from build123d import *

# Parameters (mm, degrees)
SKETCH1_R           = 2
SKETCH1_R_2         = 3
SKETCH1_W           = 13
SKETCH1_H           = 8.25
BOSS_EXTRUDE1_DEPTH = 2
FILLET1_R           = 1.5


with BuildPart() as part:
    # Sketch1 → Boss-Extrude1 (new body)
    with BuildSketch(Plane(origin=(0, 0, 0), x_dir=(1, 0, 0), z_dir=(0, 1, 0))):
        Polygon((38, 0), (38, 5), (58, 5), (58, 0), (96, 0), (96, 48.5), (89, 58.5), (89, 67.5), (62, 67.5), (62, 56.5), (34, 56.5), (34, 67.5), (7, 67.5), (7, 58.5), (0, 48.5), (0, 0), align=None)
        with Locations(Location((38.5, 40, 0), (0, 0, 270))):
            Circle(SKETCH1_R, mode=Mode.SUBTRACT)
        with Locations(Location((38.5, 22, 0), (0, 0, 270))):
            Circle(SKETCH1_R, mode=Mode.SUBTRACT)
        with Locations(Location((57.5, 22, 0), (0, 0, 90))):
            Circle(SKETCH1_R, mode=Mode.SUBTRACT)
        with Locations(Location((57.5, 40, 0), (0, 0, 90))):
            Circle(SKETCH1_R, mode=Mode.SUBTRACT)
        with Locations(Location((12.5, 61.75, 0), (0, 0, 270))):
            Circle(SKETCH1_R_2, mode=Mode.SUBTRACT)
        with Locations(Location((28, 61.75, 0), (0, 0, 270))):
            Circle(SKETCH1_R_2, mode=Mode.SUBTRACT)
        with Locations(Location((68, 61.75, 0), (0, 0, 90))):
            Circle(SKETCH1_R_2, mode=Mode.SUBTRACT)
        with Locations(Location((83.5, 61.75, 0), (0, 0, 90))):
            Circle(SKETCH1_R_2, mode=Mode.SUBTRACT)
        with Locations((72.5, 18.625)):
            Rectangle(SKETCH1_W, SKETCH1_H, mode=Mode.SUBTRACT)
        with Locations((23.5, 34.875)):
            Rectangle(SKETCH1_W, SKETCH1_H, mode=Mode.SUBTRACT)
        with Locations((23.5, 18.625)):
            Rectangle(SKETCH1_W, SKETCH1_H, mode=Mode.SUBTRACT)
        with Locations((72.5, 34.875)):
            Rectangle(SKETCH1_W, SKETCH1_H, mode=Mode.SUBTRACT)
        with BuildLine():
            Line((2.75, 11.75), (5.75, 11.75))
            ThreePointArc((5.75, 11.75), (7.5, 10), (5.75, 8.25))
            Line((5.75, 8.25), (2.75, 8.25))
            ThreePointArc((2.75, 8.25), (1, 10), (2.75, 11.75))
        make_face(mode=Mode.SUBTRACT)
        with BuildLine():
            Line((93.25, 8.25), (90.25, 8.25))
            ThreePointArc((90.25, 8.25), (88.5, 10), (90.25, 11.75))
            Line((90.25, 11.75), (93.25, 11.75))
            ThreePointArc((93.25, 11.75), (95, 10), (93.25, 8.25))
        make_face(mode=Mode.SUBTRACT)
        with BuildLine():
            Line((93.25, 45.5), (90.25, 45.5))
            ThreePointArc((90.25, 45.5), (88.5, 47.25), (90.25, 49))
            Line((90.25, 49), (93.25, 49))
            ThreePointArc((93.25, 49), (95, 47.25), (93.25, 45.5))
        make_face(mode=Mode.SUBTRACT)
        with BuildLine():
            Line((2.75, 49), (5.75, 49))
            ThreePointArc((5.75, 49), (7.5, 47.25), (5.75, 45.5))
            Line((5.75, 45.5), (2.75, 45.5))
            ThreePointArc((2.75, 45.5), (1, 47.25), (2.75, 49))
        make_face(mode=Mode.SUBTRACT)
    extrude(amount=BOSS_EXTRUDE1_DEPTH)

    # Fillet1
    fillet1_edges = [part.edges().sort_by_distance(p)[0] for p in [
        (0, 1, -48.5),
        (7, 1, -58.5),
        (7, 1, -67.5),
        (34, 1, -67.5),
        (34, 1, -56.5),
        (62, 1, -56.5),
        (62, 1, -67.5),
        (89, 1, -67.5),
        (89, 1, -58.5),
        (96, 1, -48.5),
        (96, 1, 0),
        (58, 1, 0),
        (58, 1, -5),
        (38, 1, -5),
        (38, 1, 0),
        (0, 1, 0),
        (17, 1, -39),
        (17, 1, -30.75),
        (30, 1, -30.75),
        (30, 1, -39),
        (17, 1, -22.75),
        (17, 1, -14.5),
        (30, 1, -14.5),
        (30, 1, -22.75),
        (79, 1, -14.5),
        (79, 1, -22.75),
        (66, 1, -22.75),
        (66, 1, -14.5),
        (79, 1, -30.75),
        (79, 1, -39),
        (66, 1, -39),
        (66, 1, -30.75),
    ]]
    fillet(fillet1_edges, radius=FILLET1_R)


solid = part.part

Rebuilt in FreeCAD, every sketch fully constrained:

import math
import FreeCAD as App
import Part
import Sketcher

V = App.Vector


def edges_at(feature, points):
    """Names of the edges that pass closest to the given points."""
    edges = feature.Shape.Edges
    near = lambda p: min(range(len(edges)), key=lambda i: edges[i].distToShape(Part.Vertex(*p))[0])
    return sorted({f"Edge{near(p) + 1}" for p in points})

doc = App.newDocument("Part")
body = doc.addObject("PartDesign::Body", "Body")

sketch1 = body.newObject("Sketcher::SketchObject", "Sketch")
sketch1.AttachmentSupport = (doc.getObject("XZ_Plane"), [""])
sketch1.MapMode = "FlatFace"
sketch1.addGeometry(Part.LineSegment(V(38, 0, 0), V(38, -5, 0)), False)
sketch1.addGeometry(Part.LineSegment(V(38, -5, 0), V(58, -5, 0)), False)
sketch1.addGeometry(Part.LineSegment(V(58, -5, 0), V(58, 0, 0)), False)
sketch1.addGeometry(Part.LineSegment(V(58, 0, 0), V(96, 0, 0)), False)
sketch1.addGeometry(Part.LineSegment(V(96, 0, 0), V(96, -48.5, 0)), False)
sketch1.addGeometry(Part.LineSegment(V(96, -48.5, 0), V(89, -58.5, 0)), False)
sketch1.addGeometry(Part.LineSegment(V(89, -58.5, 0), V(89, -67.5, 0)), False)
sketch1.addGeometry(Part.LineSegment(V(89, -67.5, 0), V(62, -67.5, 0)), False)
sketch1.addGeometry(Part.LineSegment(V(62, -67.5, 0), V(62, -56.5, 0)), False)
sketch1.addGeometry(Part.LineSegment(V(62, -56.5, 0), V(34, -56.5, 0)), False)
sketch1.addGeometry(Part.LineSegment(V(34, -56.5, 0), V(34, -67.5, 0)), False)
sketch1.addGeometry(Part.LineSegment(V(34, -67.5, 0), V(7, -67.5, 0)), False)
sketch1.addGeometry(Part.LineSegment(V(7, -67.5, 0), V(7, -58.5, 0)), False)
sketch1.addGeometry(Part.LineSegment(V(7, -58.5, 0), V(0, -48.5, 0)), False)
sketch1.addGeometry(Part.LineSegment(V(0, -48.5, 0), V(0, 0, 0)), False)
sketch1.addGeometry(Part.LineSegment(V(0, 0, 0), V(38, 0, 0)), False)
sketch1.addGeometry(Part.ArcOfCircle(Part.Circle(V(2.8, -10, 0), V(0, 0, 1), 1.8), math.radians(90), math.radians(270)), False)
sketch1.addGeometry(Part.LineSegment(V(2.8, -11.8, 0), V(5.8, -11.8, 0)), False)
sketch1.addGeometry(Part.ArcOfCircle(Part.Circle(V(5.8, -10, 0), V(0, 0, 1), 1.8), math.radians(-90), math.radians(90)), False)
sketch1.addGeometry(Part.LineSegment(V(5.8, -8.2, 0), V(2.8, -8.2, 0)), False)
sketch1.addGeometry(Part.LineSegment(V(30, -14.5, 0), V(17, -14.5, 0)), False)
sketch1.addGeometry(Part.LineSegment(V(17, -14.5, 0), V(17, -22.8, 0)), False)
sketch1.addGeometry(Part.LineSegment(V(17, -22.8, 0), V(30, -22.8, 0)), False)
sketch1.addGeometry(Part.LineSegment(V(30, -22.8, 0), V(30, -14.5, 0)), False)
sketch1.addGeometry(Part.Circle(V(38.5, -22, 0), V(0, 0, 1), 2), False)
sketch1.addGeometry(Part.LineSegment(V(30, -30.8, 0), V(17, -30.8, 0)), False)
sketch1.addGeometry(Part.LineSegment(V(17, -30.8, 0), V(17, -39, 0)), False)
sketch1.addGeometry(Part.LineSegment(V(17, -39, 0), V(30, -39, 0)), False)
sketch1.addGeometry(Part.LineSegment(V(30, -39, 0), V(30, -30.8, 0)), False)
sketch1.addGeometry(Part.Circle(V(57.5, -22, 0), V(0, 0, 1), 2), False)
sketch1.addGeometry(Part.ArcOfCircle(Part.Circle(V(93.2, -10, 0), V(0, 0, 1), 1.8), math.radians(-90), math.radians(90)), False)
sketch1.addGeometry(Part.LineSegment(V(93.2, -8.2, 0), V(90.2, -8.2, 0)), False)
sketch1.addGeometry(Part.ArcOfCircle(Part.Circle(V(90.2, -10, 0), V(0, 0, 1), 1.8), math.radians(90), math.radians(270)), False)
sketch1.addGeometry(Part.LineSegment(V(90.2, -11.8, 0), V(93.2, -11.8, 0)), False)
sketch1.addGeometry(Part.LineSegment(V(79, -14.5, 0), V(66, -14.5, 0)), False)
sketch1.addGeometry(Part.LineSegment(V(66, -14.5, 0), V(66, -22.8, 0)), False)
sketch1.addGeometry(Part.LineSegment(V(66, -22.8, 0), V(79, -22.8, 0)), False)
sketch1.addGeometry(Part.LineSegment(V(79, -22.8, 0), V(79, -14.5, 0)), False)
sketch1.addGeometry(Part.LineSegment(V(79, -30.8, 0), V(66, -30.8, 0)), False)
sketch1.addGeometry(Part.LineSegment(V(66, -30.8, 0), V(66, -39, 0)), False)
sketch1.addGeometry(Part.LineSegment(V(66, -39, 0), V(79, -39, 0)), False)
sketch1.addGeometry(Part.LineSegment(V(79, -39, 0), V(79, -30.8, 0)), False)
sketch1.addGeometry(Part.ArcOfCircle(Part.Circle(V(2.8, -47.2, 0), V(0, 0, 1), 1.8), math.radians(90), math.radians(270)), False)
sketch1.addGeometry(Part.LineSegment(V(2.8, -49, 0), V(5.8, -49, 0)), False)
sketch1.addGeometry(Part.ArcOfCircle(Part.Circle(V(5.8, -47.2, 0), V(0, 0, 1), 1.8), math.radians(-90), math.radians(90)), False)
sketch1.addGeometry(Part.LineSegment(V(5.8, -45.5, 0), V(2.8, -45.5, 0)), False)
sketch1.addGeometry(Part.Circle(V(38.5, -40, 0), V(0, 0, 1), 2), False)
sketch1.addGeometry(Part.Circle(V(12.5, -61.8, 0), V(0, 0, 1), 3), False)
sketch1.addGeometry(Part.Circle(V(28, -61.8, 0), V(0, 0, 1), 3), False)
sketch1.addGeometry(Part.Circle(V(57.5, -40, 0), V(0, 0, 1), 2), False)
sketch1.addGeometry(Part.ArcOfCircle(Part.Circle(V(93.2, -47.2, 0), V(0, 0, 1), 1.8), math.radians(-90), math.radians(90)), False)
sketch1.addGeometry(Part.LineSegment(V(93.2, -45.5, 0), V(90.2, -45.5, 0)), False)
sketch1.addGeometry(Part.ArcOfCircle(Part.Circle(V(90.2, -47.2, 0), V(0, 0, 1), 1.8), math.radians(90), math.radians(270)), False)
sketch1.addGeometry(Part.LineSegment(V(90.2, -49, 0), V(93.2, -49, 0)), False)
sketch1.addGeometry(Part.Circle(V(68, -61.8, 0), V(0, 0, 1), 3), False)
sketch1.addGeometry(Part.Circle(V(83.5, -61.8, 0), V(0, 0, 1), 3), False)
sketch1.addConstraint(Sketcher.Constraint("Coincident", 0, 2, 1, 1))
sketch1.addConstraint(Sketcher.Constraint("Coincident", 1, 2, 2, 1))
sketch1.addConstraint(Sketcher.Constraint("Coincident", 2, 2, 3, 1))
sketch1.addConstraint(Sketcher.Constraint("Coincident", 3, 2, 4, 1))
sketch1.addConstraint(Sketcher.Constraint("Coincident", 4, 2, 5, 1))
sketch1.addConstraint(Sketcher.Constraint("Coincident", 5, 2, 6, 1))
sketch1.addConstraint(Sketcher.Constraint("Coincident", 6, 2, 7, 1))
sketch1.addConstraint(Sketcher.Constraint("Coincident", 7, 2, 8, 1))
sketch1.addConstraint(Sketcher.Constraint("Coincident", 8, 2, 9, 1))
sketch1.addConstraint(Sketcher.Constraint("Coincident", 9, 2, 10, 1))
sketch1.addConstraint(Sketcher.Constraint("Coincident", 10, 2, 11, 1))
sketch1.addConstraint(Sketcher.Constraint("Coincident", 11, 2, 12, 1))
sketch1.addConstraint(Sketcher.Constraint("Coincident", 12, 2, 13, 1))
sketch1.addConstraint(Sketcher.Constraint("Coincident", 13, 2, 14, 1))
sketch1.addConstraint(Sketcher.Constraint("Coincident", 14, 2, 15, 1))
sketch1.addConstraint(Sketcher.Constraint("Coincident", 15, 2, 0, 1))
sketch1.addConstraint(Sketcher.Constraint("Tangent", 16, 2, 17, 1))
sketch1.addConstraint(Sketcher.Constraint("Tangent", 17, 2, 18, 1))
sketch1.addConstraint(Sketcher.Constraint("Tangent", 18, 2, 19, 1))
sketch1.addConstraint(Sketcher.Constraint("Tangent", 19, 2, 16, 1))
sketch1.addConstraint(Sketcher.Constraint("Coincident", 20, 2, 21, 1))
sketch1.addConstraint(Sketcher.Constraint("Coincident", 21, 2, 22, 1))
sketch1.addConstraint(Sketcher.Constraint("Coincident", 22, 2, 23, 1))
sketch1.addConstraint(Sketcher.Constraint("Coincident", 23, 2, 20, 1))
sketch1.addConstraint(Sketcher.Constraint("Coincident", 25, 2, 26, 1))
sketch1.addConstraint(Sketcher.Constraint("Coincident", 26, 2, 27, 1))
sketch1.addConstraint(Sketcher.Constraint("Coincident", 27, 2, 28, 1))
sketch1.addConstraint(Sketcher.Constraint("Coincident", 28, 2, 25, 1))
sketch1.addConstraint(Sketcher.Constraint("Tangent", 30, 2, 31, 1))
sketch1.addConstraint(Sketcher.Constraint("Tangent", 31, 2, 32, 1))
sketch1.addConstraint(Sketcher.Constraint("Tangent", 32, 2, 33, 1))
sketch1.addConstraint(Sketcher.Constraint("Tangent", 33, 2, 30, 1))
sketch1.addConstraint(Sketcher.Constraint("Coincident", 34, 2, 35, 1))
sketch1.addConstraint(Sketcher.Constraint("Coincident", 35, 2, 36, 1))
sketch1.addConstraint(Sketcher.Constraint("Coincident", 36, 2, 37, 1))
sketch1.addConstraint(Sketcher.Constraint("Coincident", 37, 2, 34, 1))
sketch1.addConstraint(Sketcher.Constraint("Coincident", 38, 2, 39, 1))
sketch1.addConstraint(Sketcher.Constraint("Coincident", 39, 2, 40, 1))
sketch1.addConstraint(Sketcher.Constraint("Coincident", 40, 2, 41, 1))
sketch1.addConstraint(Sketcher.Constraint("Coincident", 41, 2, 38, 1))
sketch1.addConstraint(Sketcher.Constraint("Tangent", 42, 2, 43, 1))
sketch1.addConstraint(Sketcher.Constraint("Tangent", 43, 2, 44, 1))
sketch1.addConstraint(Sketcher.Constraint("Tangent", 44, 2, 45, 1))
sketch1.addConstraint(Sketcher.Constraint("Tangent", 45, 2, 42, 1))
sketch1.addConstraint(Sketcher.Constraint("Tangent", 50, 2, 51, 1))
sketch1.addConstraint(Sketcher.Constraint("Tangent", 51, 2, 52, 1))
sketch1.addConstraint(Sketcher.Constraint("Tangent", 52, 2, 53, 1))
sketch1.addConstraint(Sketcher.Constraint("Tangent", 53, 2, 50, 1))
sketch1.addConstraint(Sketcher.Constraint("Vertical", 0))
sketch1.addConstraint(Sketcher.Constraint("Horizontal", 1))
sketch1.addConstraint(Sketcher.Constraint("Vertical", 2))
sketch1.addConstraint(Sketcher.Constraint("Horizontal", 3))
sketch1.addConstraint(Sketcher.Constraint("Vertical", 4))
sketch1.addConstraint(Sketcher.Constraint("Vertical", 6))
sketch1.addConstraint(Sketcher.Constraint("Horizontal", 7))
sketch1.addConstraint(Sketcher.Constraint("Vertical", 8))
sketch1.addConstraint(Sketcher.Constraint("Horizontal", 9))
sketch1.addConstraint(Sketcher.Constraint("Vertical", 10))
sketch1.addConstraint(Sketcher.Constraint("Horizontal", 11))
sketch1.addConstraint(Sketcher.Constraint("Vertical", 12))
sketch1.addConstraint(Sketcher.Constraint("Vertical", 14))
sketch1.addConstraint(Sketcher.Constraint("Horizontal", 15))
sketch1.addConstraint(Sketcher.Constraint("Horizontal", 17))
sketch1.addConstraint(Sketcher.Constraint("Horizontal", 19))
sketch1.addConstraint(Sketcher.Constraint("Horizontal", 20))
sketch1.addConstraint(Sketcher.Constraint("Vertical", 21))
sketch1.addConstraint(Sketcher.Constraint("Horizontal", 22))
sketch1.addConstraint(Sketcher.Constraint("Vertical", 23))
sketch1.addConstraint(Sketcher.Constraint("Horizontal", 25))
sketch1.addConstraint(Sketcher.Constraint("Vertical", 26))
sketch1.addConstraint(Sketcher.Constraint("Horizontal", 27))
sketch1.addConstraint(Sketcher.Constraint("Vertical", 28))
sketch1.addConstraint(Sketcher.Constraint("Horizontal", 31))
sketch1.addConstraint(Sketcher.Constraint("Horizontal", 33))
sketch1.addConstraint(Sketcher.Constraint("Horizontal", 34))
sketch1.addConstraint(Sketcher.Constraint("Vertical", 35))
sketch1.addConstraint(Sketcher.Constraint("Horizontal", 36))
sketch1.addConstraint(Sketcher.Constraint("Vertical", 37))
sketch1.addConstraint(Sketcher.Constraint("Horizontal", 38))
sketch1.addConstraint(Sketcher.Constraint("Vertical", 39))
sketch1.addConstraint(Sketcher.Constraint("Horizontal", 40))
sketch1.addConstraint(Sketcher.Constraint("Vertical", 41))
sketch1.addConstraint(Sketcher.Constraint("Horizontal", 43))
sketch1.addConstraint(Sketcher.Constraint("Horizontal", 45))
sketch1.addConstraint(Sketcher.Constraint("Horizontal", 51))
sketch1.addConstraint(Sketcher.Constraint("Horizontal", 53))
sketch1.addConstraint(Sketcher.Constraint("Coincident", 14, 2, -1, 1))
sketch1.addConstraint(Sketcher.Constraint("Equal", 24, 29))
sketch1.addConstraint(Sketcher.Constraint("Equal", 18, 30))
sketch1.addConstraint(Sketcher.Constraint("Equal", 32, 42))
sketch1.addConstraint(Sketcher.Constraint("Equal", 29, 46))
sketch1.addConstraint(Sketcher.Constraint("Equal", 47, 48))
sketch1.addConstraint(Sketcher.Constraint("Equal", 46, 49))
sketch1.addConstraint(Sketcher.Constraint("Equal", 44, 50))
sketch1.addConstraint(Sketcher.Constraint("Equal", 48, 54))
sketch1.addConstraint(Sketcher.Constraint("Equal", 54, 55))
sketch1.addConstraint(Sketcher.Constraint("PointOnObject", 2, 2, -1))
sketch1.addConstraint(Sketcher.Constraint("Horizontal", 24, 3, 29, 3))
sketch1.addConstraint(Sketcher.Constraint("Horizontal", 18, 3, 30, 3))
sketch1.addConstraint(Sketcher.Constraint("Horizontal", 47, 3, 48, 3))
sketch1.addConstraint(Sketcher.Constraint("Horizontal", 46, 3, 49, 3))
sketch1.addConstraint(Sketcher.Constraint("Horizontal", 44, 3, 50, 3))
sketch1.addConstraint(Sketcher.Constraint("Horizontal", 48, 3, 54, 3))
sketch1.addConstraint(Sketcher.Constraint("Horizontal", 54, 3, 55, 3))
sketch1.addConstraint(Sketcher.Constraint("Horizontal", 7, 2, 10, 2))
sketch1.addConstraint(Sketcher.Constraint("Horizontal", 5, 2, 12, 2))
sketch1.addConstraint(Sketcher.Constraint("Horizontal", 4, 2, 13, 2))
sketch1.addConstraint(Sketcher.Constraint("Horizontal", 23, 2, 34, 2))
sketch1.addConstraint(Sketcher.Constraint("Horizontal", 22, 2, 35, 2))
sketch1.addConstraint(Sketcher.Constraint("Horizontal", 28, 2, 38, 2))
sketch1.addConstraint(Sketcher.Constraint("Horizontal", 27, 2, 39, 2))
sketch1.addConstraint(Sketcher.Constraint("Vertical", 16, 3, 42, 3))
sketch1.addConstraint(Sketcher.Constraint("Vertical", 18, 3, 44, 3))
sketch1.addConstraint(Sketcher.Constraint("Vertical", 24, 3, 46, 3))
sketch1.addConstraint(Sketcher.Constraint("Vertical", 29, 3, 49, 3))
sketch1.addConstraint(Sketcher.Constraint("Vertical", 30, 3, 50, 3))
sketch1.addConstraint(Sketcher.Constraint("Vertical", 32, 3, 52, 3))
sketch1.addConstraint(Sketcher.Constraint("Vertical", 21, 2, 25, 2))
sketch1.addConstraint(Sketcher.Constraint("Vertical", 23, 2, 27, 2))
sketch1.addConstraint(Sketcher.Constraint("Vertical", 35, 2, 38, 2))
sketch1.addConstraint(Sketcher.Constraint("Vertical", 37, 2, 40, 2))
sketch1.addConstraint(Sketcher.Constraint("Equal", 7, 11))
sketch1.addConstraint(Sketcher.Constraint("Equal", 3, 15))
sketch1.addConstraint(Sketcher.Constraint("Equal", 19, 31))
sketch1.addConstraint(Sketcher.Constraint("Equal", 27, 34))
sketch1.addConstraint(Sketcher.Constraint("Equal", 23, 26))
sketch1.addConstraint(Sketcher.Constraint("Equal", 5, 13))
sketch1.addConstraint(Sketcher.Constraint("Diameter", 24, 4.0))
sketch1.addConstraint(Sketcher.Constraint("Diameter", 47, 6.0))
sketch1.addConstraint(Sketcher.Constraint("DistanceX", 1, 1, 1, 2, 20.0))
sketch1.addConstraint(Sketcher.Constraint("DistanceX", 3, 1, 3, 2, 38.0))
sketch1.addConstraint(Sketcher.Constraint("DistanceX", 7, 2, 7, 1, 27.0))
sketch1.addConstraint(Sketcher.Constraint("DistanceX", 9, 2, 9, 1, 28.0))
sketch1.addConstraint(Sketcher.Constraint("DistanceX", 17, 1, 17, 2, 3.0))
sketch1.addConstraint(Sketcher.Constraint("DistanceX", 20, 2, 20, 1, 13.0))
sketch1.addConstraint(Sketcher.Constraint("DistanceY", 0, 2, 0, 1, 5.0))
sketch1.addConstraint(Sketcher.Constraint("DistanceY", 6, 2, 6, 1, 9.0))
sketch1.addConstraint(Sketcher.Constraint("DistanceY", 8, 1, 8, 2, 11.0))
sketch1.addConstraint(Sketcher.Constraint("Radius", 16, 1.75))
sketch1.addConstraint(Sketcher.Constraint("DistanceY", 4, 2, 4, 1, 48.5))
sketch1.addConstraint(Sketcher.Constraint("DistanceY", 16, 3, -1, 1, 10.0))
sketch1.addConstraint(Sketcher.Constraint("DistanceY", 24, 3, -1, 1, 22.0))
sketch1.addConstraint(Sketcher.Constraint("DistanceY", 46, 3, -1, 1, 40.0))
sketch1.addConstraint(Sketcher.Constraint("DistanceX", -1, 1, 48, 3, 28.0))
sketch1.addConstraint(Sketcher.Constraint("DistanceX", -1, 1, 54, 3, 68.0))
sketch1.addConstraint(Sketcher.Constraint("DistanceX", -1, 1, 20, 2, 17.0))
sketch1.addConstraint(Sketcher.Constraint("DistanceY", 26, 2, -1, 1, 39.0))
sketch1.addConstraint(Sketcher.Constraint("DistanceX", -1, 1, 34, 2, 66.0))
sketch1.addConstraint(Sketcher.Constraint("DistanceY", 42, 2, -1, 1, 49.0))
sketch1.addConstraint(Sketcher.Constraint("DistanceY", 21, 2, 21, 1, 8.25))
sketch1.addConstraint(Sketcher.Constraint("DistanceX", -1, 1, 24, 3, 38.5))
sketch1.addConstraint(Sketcher.Constraint("DistanceX", -1, 1, 29, 3, 57.5))
sketch1.addConstraint(Sketcher.Constraint("DistanceX", -1, 1, 47, 3, 12.5))
sketch1.addConstraint(Sketcher.Constraint("DistanceX", -1, 1, 55, 3, 83.5))
sketch1.addConstraint(Sketcher.Constraint("DistanceY", 5, 2, -1, 1, 58.5))
sketch1.addConstraint(Sketcher.Constraint("DistanceY", 20, 2, -1, 1, 14.5))
sketch1.addConstraint(Sketcher.Constraint("DistanceX", -1, 1, 16, 3, 2.75))
sketch1.addConstraint(Sketcher.Constraint("DistanceX", -1, 1, 30, 3, 93.25))
sketch1.addConstraint(Sketcher.Constraint("DistanceY", 47, 3, -1, 1, 61.75))
pad1 = body.newObject("PartDesign::Pad", "Pad")
pad1.Profile = sketch1
pad1.Length = 2
pad1.Reversed = True
doc.recompute()

fillet = body.newObject("PartDesign::Fillet", "Fillet")
fillet.Base = (pad1, edges_at(pad1, [
    (0, 1, -48.5),
    (7, 1, -58.5),
    (7, 1, -67.5),
    (34, 1, -67.5),
    (34, 1, -56.5),
    (62, 1, -56.5),
    (62, 1, -67.5),
    (89, 1, -67.5),
    (89, 1, -58.5),
    (96, 1, -48.5),
    (96, 1, 0),
    (58, 1, 0),
    (58, 1, -5),
    (38, 1, -5),
    (38, 1, 0),
    (0, 1, 0),
    (17, 1, -39),
    (17, 1, -30.75),
    (30, 1, -30.75),
    (30, 1, -39),
    (17, 1, -22.75),
    (17, 1, -14.5),
    (30, 1, -14.5),
    (30, 1, -22.75),
    (79, 1, -14.5),
    (79, 1, -22.75),
    (66, 1, -22.75),
    (66, 1, -14.5),
    (79, 1, -30.75),
    (79, 1, -39),
    (66, 1, -39),
    (66, 1, -30.75),
]))
fillet.Radius = 1.5

doc.recompute()
